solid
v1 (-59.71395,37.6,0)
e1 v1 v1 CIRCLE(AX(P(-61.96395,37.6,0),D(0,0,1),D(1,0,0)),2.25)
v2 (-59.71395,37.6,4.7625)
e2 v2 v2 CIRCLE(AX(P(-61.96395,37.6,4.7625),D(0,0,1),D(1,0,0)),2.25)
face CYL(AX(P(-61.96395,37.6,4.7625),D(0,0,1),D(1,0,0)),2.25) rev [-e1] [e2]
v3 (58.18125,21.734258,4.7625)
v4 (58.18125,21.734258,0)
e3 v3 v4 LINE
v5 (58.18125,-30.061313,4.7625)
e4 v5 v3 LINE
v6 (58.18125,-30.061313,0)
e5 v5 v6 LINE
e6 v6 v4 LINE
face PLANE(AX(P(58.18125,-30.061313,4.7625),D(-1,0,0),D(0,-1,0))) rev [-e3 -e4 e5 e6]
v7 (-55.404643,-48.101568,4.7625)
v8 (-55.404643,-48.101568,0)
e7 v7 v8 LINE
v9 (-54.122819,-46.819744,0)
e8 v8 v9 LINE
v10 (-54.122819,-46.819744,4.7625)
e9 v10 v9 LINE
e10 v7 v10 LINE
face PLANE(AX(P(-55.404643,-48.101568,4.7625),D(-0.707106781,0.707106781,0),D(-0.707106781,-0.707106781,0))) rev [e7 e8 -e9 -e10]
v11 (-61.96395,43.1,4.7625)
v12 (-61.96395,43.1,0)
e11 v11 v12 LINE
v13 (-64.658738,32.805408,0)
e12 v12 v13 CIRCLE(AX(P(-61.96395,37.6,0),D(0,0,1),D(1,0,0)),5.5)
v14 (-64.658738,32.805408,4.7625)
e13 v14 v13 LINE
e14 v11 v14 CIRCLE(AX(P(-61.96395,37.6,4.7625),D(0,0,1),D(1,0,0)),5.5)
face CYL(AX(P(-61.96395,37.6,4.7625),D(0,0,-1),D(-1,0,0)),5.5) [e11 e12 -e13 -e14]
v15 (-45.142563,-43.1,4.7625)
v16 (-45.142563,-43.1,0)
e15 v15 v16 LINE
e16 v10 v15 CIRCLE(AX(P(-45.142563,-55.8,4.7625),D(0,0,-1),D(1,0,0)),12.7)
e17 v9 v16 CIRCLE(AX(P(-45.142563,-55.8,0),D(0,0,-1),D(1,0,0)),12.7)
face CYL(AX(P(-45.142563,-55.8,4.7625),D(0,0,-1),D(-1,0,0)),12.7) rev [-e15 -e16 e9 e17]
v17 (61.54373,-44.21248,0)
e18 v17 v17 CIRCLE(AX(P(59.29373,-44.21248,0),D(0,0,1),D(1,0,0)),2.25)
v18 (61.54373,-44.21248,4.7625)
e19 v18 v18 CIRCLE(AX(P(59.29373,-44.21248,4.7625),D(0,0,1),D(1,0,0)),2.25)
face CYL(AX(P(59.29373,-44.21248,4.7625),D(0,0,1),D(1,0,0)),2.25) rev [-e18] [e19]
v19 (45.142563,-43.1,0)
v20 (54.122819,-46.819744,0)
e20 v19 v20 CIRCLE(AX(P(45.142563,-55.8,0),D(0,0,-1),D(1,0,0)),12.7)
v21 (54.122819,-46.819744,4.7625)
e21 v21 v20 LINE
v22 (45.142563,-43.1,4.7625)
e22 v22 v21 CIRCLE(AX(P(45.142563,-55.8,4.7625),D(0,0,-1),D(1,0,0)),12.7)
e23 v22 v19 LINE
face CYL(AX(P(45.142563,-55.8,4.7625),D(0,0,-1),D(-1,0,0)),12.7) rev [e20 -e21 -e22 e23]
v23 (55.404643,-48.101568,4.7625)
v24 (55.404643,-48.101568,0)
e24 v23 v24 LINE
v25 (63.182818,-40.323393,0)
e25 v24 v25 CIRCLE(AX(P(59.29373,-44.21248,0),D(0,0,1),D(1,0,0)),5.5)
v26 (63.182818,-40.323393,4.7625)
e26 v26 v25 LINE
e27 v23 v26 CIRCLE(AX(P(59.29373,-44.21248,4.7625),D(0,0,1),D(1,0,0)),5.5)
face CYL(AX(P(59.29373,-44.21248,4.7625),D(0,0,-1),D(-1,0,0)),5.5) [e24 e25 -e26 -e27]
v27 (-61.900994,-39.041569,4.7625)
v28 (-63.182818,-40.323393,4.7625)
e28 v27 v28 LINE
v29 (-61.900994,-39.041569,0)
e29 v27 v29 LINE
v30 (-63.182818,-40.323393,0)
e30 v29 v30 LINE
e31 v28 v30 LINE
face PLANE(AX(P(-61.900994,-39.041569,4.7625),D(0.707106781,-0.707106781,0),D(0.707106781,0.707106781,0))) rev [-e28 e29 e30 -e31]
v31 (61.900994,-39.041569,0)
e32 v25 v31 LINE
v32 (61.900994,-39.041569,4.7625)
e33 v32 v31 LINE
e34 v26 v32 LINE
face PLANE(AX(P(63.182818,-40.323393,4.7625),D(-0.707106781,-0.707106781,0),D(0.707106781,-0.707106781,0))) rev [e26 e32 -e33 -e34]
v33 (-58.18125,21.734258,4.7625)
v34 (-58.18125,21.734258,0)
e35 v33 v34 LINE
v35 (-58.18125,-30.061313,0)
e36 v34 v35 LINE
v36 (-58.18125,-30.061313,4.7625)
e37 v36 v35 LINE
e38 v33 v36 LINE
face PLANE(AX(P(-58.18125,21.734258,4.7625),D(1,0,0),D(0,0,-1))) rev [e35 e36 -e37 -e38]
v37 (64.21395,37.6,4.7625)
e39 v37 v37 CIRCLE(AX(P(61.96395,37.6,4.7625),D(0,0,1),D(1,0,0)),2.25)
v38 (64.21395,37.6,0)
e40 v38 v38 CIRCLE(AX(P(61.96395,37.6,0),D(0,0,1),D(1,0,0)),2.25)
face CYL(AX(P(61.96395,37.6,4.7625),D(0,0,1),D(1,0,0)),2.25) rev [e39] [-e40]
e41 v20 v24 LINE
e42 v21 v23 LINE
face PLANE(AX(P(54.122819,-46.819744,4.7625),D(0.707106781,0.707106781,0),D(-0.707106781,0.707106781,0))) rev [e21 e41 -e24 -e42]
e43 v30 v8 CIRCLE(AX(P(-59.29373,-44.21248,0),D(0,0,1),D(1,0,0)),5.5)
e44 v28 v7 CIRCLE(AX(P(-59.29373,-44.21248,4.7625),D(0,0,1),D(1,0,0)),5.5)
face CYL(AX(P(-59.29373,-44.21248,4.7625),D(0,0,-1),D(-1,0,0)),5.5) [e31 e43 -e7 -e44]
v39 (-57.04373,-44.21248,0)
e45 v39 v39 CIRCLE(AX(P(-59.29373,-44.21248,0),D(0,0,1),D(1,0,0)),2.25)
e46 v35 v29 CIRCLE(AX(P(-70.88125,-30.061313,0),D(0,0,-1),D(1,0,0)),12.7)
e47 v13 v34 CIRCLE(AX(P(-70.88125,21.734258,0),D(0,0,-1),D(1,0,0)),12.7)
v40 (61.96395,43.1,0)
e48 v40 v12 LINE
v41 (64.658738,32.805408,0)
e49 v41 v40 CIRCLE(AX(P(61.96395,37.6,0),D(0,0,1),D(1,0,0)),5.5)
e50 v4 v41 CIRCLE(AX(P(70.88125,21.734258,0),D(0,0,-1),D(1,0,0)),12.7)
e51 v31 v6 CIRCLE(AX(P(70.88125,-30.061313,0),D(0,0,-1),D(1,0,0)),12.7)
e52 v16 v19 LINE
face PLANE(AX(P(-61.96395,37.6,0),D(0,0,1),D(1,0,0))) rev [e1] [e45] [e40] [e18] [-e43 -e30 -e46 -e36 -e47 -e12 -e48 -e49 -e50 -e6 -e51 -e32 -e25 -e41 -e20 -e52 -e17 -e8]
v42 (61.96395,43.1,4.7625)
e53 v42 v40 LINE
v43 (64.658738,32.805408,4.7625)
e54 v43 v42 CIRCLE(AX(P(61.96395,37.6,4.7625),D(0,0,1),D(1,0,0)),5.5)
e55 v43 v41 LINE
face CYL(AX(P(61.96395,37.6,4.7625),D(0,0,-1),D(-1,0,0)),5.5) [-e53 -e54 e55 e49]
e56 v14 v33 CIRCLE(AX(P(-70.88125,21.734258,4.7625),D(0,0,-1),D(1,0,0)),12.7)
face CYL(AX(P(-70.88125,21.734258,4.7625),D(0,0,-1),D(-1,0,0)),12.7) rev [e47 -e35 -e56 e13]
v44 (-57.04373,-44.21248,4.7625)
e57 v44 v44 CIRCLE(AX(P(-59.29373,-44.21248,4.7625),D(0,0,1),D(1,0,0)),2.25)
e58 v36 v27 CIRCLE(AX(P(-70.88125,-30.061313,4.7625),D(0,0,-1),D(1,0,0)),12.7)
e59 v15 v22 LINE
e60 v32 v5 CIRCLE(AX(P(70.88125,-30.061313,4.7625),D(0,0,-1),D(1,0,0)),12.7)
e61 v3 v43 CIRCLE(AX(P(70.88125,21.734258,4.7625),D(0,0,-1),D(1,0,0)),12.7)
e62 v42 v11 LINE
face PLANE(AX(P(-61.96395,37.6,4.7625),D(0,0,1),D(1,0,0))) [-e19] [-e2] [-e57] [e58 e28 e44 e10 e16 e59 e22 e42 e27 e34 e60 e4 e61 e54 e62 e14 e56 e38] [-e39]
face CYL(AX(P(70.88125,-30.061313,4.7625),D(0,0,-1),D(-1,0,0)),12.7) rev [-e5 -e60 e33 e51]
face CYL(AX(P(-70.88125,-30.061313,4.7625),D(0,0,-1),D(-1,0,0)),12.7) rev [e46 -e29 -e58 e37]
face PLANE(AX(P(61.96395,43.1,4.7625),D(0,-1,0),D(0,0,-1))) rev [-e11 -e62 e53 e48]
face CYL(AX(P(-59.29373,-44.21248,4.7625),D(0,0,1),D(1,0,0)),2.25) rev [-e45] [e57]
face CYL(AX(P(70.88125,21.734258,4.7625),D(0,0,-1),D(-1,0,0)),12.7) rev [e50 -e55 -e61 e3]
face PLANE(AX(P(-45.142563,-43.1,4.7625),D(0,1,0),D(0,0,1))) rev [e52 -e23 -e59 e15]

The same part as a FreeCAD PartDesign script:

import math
import FreeCAD as App
import Part
import Sketcher
from FreeCAD import Vector
Q = App.Units.Quantity

doc = App.newDocument("Part")
params = doc.addObject("Spreadsheet::Sheet", "Params")
for row, (alias, value) in enumerate([
    ("sketch1_radius", "12.7 mm"),
    ("sketch1_radius2", "5.5 mm"),
    ("pad1_length", "4.7625 mm"),
    ("sketch2_diameter", "4.5 mm"),
    ("hole_diameter", "4.5 mm"),
], start=1):
    params.set(f"A{row}", alias)
    params.set(f"B{row}", "=" + value)
    params.setAlias(f"B{row}", alias)

body = doc.addObject("PartDesign::Body", "Body")

# Sketch on XY plane
sketch1 = body.newObject("Sketcher::SketchObject", "Sketch")
sketch1.AttachmentSupport = (doc.getObject("XY_Plane"), [""])
sketch1.MapMode = "FlatFace"
sketch1.addGeometry([
    Part.LineSegment(Vector(-58.2, 21.7, 0), Vector(-58.2, -30.1, 0)),  # 0
    Part.ArcOfCircle(Part.Circle(Vector(-70.9, -30.1, 0), Vector(0, 0, 1), 12.7), math.radians(-45), math.radians(0)),  # 1
    Part.LineSegment(Vector(-61.9, -39, 0), Vector(-63.2, -40.3, 0)),  # 2
    Part.ArcOfCircle(Part.Circle(Vector(-59.3, -44.2, 0), Vector(0, 0, 1), 5.5), math.radians(135), math.radians(315)),  # 3
    Part.LineSegment(Vector(-55.4, -48.1, 0), Vector(-54.1, -46.8, 0)),  # 4
    Part.ArcOfCircle(Part.Circle(Vector(-45.1, -55.8, 0), Vector(0, 0, 1), 12.7), math.radians(90), math.radians(135)),  # 5
    Part.LineSegment(Vector(-45.1, -43.1, 0), Vector(45.1, -43.1, 0)),  # 6
    Part.ArcOfCircle(Part.Circle(Vector(45.1, -55.8, 0), Vector(0, 0, 1), 12.7), math.radians(45), math.radians(90)),  # 7
    Part.LineSegment(Vector(54.1, -46.8, 0), Vector(55.4, -48.1, 0)),  # 8
    Part.ArcOfCircle(Part.Circle(Vector(59.3, -44.2, 0), Vector(0, 0, 1), 5.5), math.radians(-135), math.radians(45)),  # 9
    Part.LineSegment(Vector(63.2, -40.3, 0), Vector(61.9, -39, 0)),  # 10
    Part.ArcOfCircle(Part.Circle(Vector(70.9, -30.1, 0), Vector(0, 0, 1), 12.7), math.radians(180), math.radians(225)),  # 11
    Part.LineSegment(Vector(58.2, -30.1, 0), Vector(58.2, 21.7, 0)),  # 12
    Part.ArcOfCircle(Part.Circle(Vector(70.9, 21.7, 0), Vector(0, 0, 1), 12.7), math.radians(119), math.radians(180)),  # 13
    Part.ArcOfCircle(Part.Circle(Vector(62, 37.6, 0), Vector(0, 0, 1), 5.5), math.radians(-61), math.radians(90)),  # 14
    Part.LineSegment(Vector(62, 43.1, 0), Vector(-62, 43.1, 0)),  # 15
    Part.ArcOfCircle(Part.Circle(Vector(-62, 37.6, 0), Vector(0, 0, 1), 5.5), math.radians(90), math.radians(241)),  # 16
    Part.ArcOfCircle(Part.Circle(Vector(-70.9, 21.7, 0), Vector(0, 0, 1), 12.7), math.radians(0), math.radians(61)),  # 17
], False)
sketch1.addConstraint([
    Sketcher.Constraint("Tangent", 0, 2, 1, 2),
    Sketcher.Constraint("Tangent", 1, 1, 2, 1),
    Sketcher.Constraint("Tangent", 2, 2, 3, 1),
    Sketcher.Constraint("Tangent", 3, 2, 4, 1),
    Sketcher.Constraint("Tangent", 4, 2, 5, 2),
    Sketcher.Constraint("Tangent", 5, 1, 6, 1),
    Sketcher.Constraint("Tangent", 6, 2, 7, 2),
    Sketcher.Constraint("Tangent", 7, 1, 8, 1),
    Sketcher.Constraint("Tangent", 8, 2, 9, 1),
    Sketcher.Constraint("Tangent", 9, 2, 10, 1),
    Sketcher.Constraint("Tangent", 10, 2, 11, 2),
    Sketcher.Constraint("Tangent", 11, 1, 12, 1),
    Sketcher.Constraint("Tangent", 12, 2, 13, 2),
    Sketcher.Constraint("Tangent", 13, 1, 14, 1),
    Sketcher.Constraint("Tangent", 14, 2, 15, 1),
    Sketcher.Constraint("Tangent", 15, 2, 16, 1),
    Sketcher.Constraint("Tangent", 16, 2, 17, 2),
    Sketcher.Constraint("Tangent", 17, 1, 0, 1),
    Sketcher.Constraint("Vertical", 0),
    Sketcher.Constraint("Horizontal", 6),
    Sketcher.Constraint("Vertical", 12),
    Sketcher.Constraint("Horizontal", 15),
    Sketcher.Constraint("Equal", 1, 5),
    Sketcher.Constraint("Equal", 5, 7),
    Sketcher.Constraint("Equal", 3, 9),
    Sketcher.Constraint("Equal", 7, 11),
    Sketcher.Constraint("Equal", 11, 13),
    Sketcher.Constraint("Equal", 9, 14),
    Sketcher.Constraint("Equal", 14, 16),
    Sketcher.Constraint("Equal", 13, 17),
    Sketcher.Constraint("Symmetric", 3, 3, 9, 3, -2),
    Sketcher.Constraint("Symmetric", 1, 3, 11, 3, -2),
    Sketcher.Constraint("Parallel", 2, 4),
    Sketcher.Constraint("Perpendicular", 4, 8),
    Sketcher.Constraint("Parallel", 8, 10),
    Sketcher.Constraint("Horizontal", 13, 3, 17, 3),
    Sketcher.Constraint("Equal", 2, 4),
    Sketcher.Constraint("Radius", 1, Q("12.7 mm")),
    Sketcher.Constraint("Radius", 3, Q("5.5 mm")),
    Sketcher.Constraint("DistanceY", 5, 3, -1, 1, Q("55.8 mm")),
    Sketcher.Constraint("DistanceY", -1, 1, 14, 3, Q("37.6 mm")),
    Sketcher.Constraint("DistanceY", 3, 2, 1, 1, Q("9.059998 mm")),
    Sketcher.Constraint("DistanceX", 15, 2, 15, 1, Q("123.9279 mm")),
    Sketcher.Constraint("DistanceY", 0, 2, 0, 1, Q("51.795571 mm")),
])
sketch1.setExpression("Constraints[37]", "Params.sketch1_radius")
sketch1.setExpression("Constraints[38]", "Params.sketch1_radius2")
pad1 = body.newObject("PartDesign::Pad", "Pad")
pad1.Profile = sketch1
pad1.setExpression("Length", "Params.pad1_length")

# Sketch on XY plane
sketch2 = body.newObject("Sketcher::SketchObject", "Sketch001")
sketch2.AttachmentSupport = (doc.getObject("XY_Plane"), [""])
sketch2.MapMode = "FlatFace"
sketch2.AttachmentOffset = App.Placement(Vector(0, 0, 4.7625), App.Rotation())
sketch2.addGeometry([
    Part.Circle(Vector(-59.3, -44.2, 0), Vector(0, 0, 1), 2.2),
    Part.Circle(Vector(-62, 37.6, 0), Vector(0, 0, 1), 2.2),
    Part.Circle(Vector(62, 37.6, 0), Vector(0, 0, 1), 2.2),
    Part.Circle(Vector(59.3, -44.2, 0), Vector(0, 0, 1), 2.2),
], False)
sketch2.addConstraint([
    Sketcher.Constraint("Equal", 0, 1),
    Sketcher.Constraint("Equal", 1, 2),
    Sketcher.Constraint("Equal", 2, 3),
    Sketcher.Constraint("Symmetric", 1, 3, 2, 3, -2),
    Sketcher.Constraint("Symmetric", 0, 3, 3, 3, -2),
    Sketcher.Constraint("Diameter", 0, Q("4.5 mm")),
    Sketcher.Constraint("DistanceY", -1, 1, 1, 3, Q("37.6 mm")),
    Sketcher.Constraint("DistanceX", 1, 3, 2, 3, Q("123.9279 mm")),
    Sketcher.Constraint("DistanceX", 0, 3, -1, 1, Q("59.29373 mm")),
    Sketcher.Constraint("DistanceY", 0, 3, -1, 1, Q("44.21248 mm")),
])
sketch2.setExpression("Constraints[5]", "Params.sketch2_diameter")
doc.recompute()
hole = body.newObject("PartDesign::Hole", "Hole")
hole.Profile = sketch2
hole.ThreadType = "None"
hole.setExpression("Diameter", "Params.hole_diameter")
hole.DepthType = "ThroughAll"

doc.recompute()
